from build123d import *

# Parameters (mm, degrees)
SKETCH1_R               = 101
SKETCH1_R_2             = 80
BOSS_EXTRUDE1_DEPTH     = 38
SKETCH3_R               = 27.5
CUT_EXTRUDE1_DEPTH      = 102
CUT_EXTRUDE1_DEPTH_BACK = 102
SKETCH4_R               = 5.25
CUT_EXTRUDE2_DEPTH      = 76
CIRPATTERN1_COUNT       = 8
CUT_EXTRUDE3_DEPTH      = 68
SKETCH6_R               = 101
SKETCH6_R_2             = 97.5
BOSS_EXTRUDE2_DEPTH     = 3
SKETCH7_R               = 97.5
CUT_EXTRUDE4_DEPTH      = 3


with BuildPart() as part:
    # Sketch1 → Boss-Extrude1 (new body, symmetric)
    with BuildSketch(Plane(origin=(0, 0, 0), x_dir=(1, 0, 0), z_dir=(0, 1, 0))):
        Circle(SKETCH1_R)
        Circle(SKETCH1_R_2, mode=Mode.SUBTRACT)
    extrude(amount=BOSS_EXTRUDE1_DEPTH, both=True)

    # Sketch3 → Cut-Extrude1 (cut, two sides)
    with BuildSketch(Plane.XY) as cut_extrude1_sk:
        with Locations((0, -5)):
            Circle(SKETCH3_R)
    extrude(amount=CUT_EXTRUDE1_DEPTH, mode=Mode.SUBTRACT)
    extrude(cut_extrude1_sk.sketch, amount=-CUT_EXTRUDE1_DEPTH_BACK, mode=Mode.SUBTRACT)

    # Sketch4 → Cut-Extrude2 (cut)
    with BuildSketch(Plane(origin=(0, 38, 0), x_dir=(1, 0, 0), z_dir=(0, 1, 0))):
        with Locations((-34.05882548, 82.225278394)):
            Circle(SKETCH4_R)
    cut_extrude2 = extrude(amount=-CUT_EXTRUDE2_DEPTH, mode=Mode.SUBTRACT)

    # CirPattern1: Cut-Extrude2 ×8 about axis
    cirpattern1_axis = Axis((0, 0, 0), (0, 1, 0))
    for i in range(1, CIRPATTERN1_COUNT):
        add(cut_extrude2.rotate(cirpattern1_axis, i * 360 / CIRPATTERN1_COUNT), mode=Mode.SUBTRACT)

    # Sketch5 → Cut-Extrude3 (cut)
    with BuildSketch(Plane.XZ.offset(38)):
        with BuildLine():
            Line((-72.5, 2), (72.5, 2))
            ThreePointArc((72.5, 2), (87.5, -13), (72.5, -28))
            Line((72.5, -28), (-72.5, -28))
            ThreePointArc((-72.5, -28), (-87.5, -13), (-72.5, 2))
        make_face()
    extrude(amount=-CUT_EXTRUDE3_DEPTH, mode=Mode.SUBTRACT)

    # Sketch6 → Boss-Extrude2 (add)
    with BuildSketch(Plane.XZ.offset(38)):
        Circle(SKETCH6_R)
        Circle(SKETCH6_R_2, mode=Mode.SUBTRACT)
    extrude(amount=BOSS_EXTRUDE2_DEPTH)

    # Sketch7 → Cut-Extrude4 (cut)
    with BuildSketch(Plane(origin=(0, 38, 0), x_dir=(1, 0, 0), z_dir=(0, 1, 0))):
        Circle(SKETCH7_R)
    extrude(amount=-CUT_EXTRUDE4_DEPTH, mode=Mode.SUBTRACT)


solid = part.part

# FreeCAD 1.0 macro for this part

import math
import FreeCAD as App
import Part
import Sketcher

V = App.Vector
Q = App.Units.Quantity

doc = App.newDocument("Part")
params = doc.addObject("Spreadsheet::Sheet", "Params")
for row, (alias, value) in enumerate([
    ("sketch1_diameter", "202 mm"),
    ("sketch1_diameter2", "160 mm"),
    ("pad1_length", "76 mm"),
    ("sketch2_diameter", "55 mm"),
    ("sketch3_diameter", "10.5 mm"),
    ("pocket2_length", "76 mm"),
    ("sketch4_radius", "15 mm"),
    ("sketch4_width", "145 mm"),
    ("pocket3_length", "68 mm"),
    ("sketch5_diameter", "202 mm"),
    ("sketch5_diameter2", "195 mm"),
    ("pad2_length", "3 mm"),
    ("sketch6_diameter", "195 mm"),
    ("pocket4_length", "3 mm"),
], start=1):
    params.set(f"A{row}", alias)
    params.set(f"B{row}", "=" + value)
    params.setAlias(f"B{row}", alias)

body = doc.addObject("PartDesign::Body", "Body")

# Sketch on XZ plane
sketch1 = doc.addObject("Sketcher::SketchObject", "Sketch")
body.addObject(sketch1)
sketch1.AttachmentSupport = (doc.XZ_Plane, [""])
sketch1.MapMode = "FlatFace"
sketch1.addGeometry(Part.Circle(V(0, 0, 0), V(0, 0, 1), 101), False)
sketch1.addGeometry(Part.Circle(V(0, 0, 0), V(0, 0, 1), 80), False)
sketch1.addConstraint(Sketcher.Constraint("Coincident", 0, 3, -1, 1))
sketch1.addConstraint(Sketcher.Constraint("Coincident", 1, 3, -1, 1))
sketch1.addConstraint(Sketcher.Constraint("Diameter", 0, Q("202 mm")))
sketch1.addConstraint(Sketcher.Constraint("Diameter", 1, Q("160 mm")))
sketch1.setExpression("Constraints[2]", "Params.sketch1_diameter")
sketch1.setExpression("Constraints[3]", "Params.sketch1_diameter2")
pad1 = doc.addObject("PartDesign::Pad", "Pad")
body.addObject(pad1)
pad1.Profile = sketch1
pad1.setExpression("Length", "Params.pad1_length")
pad1.Midplane = True

# Sketch on XY plane
sketch2 = doc.addObject("Sketcher::SketchObject", "Sketch001")
body.addObject(sketch2)
sketch2.AttachmentSupport = (doc.XY_Plane, [""])
sketch2.MapMode = "FlatFace"
sketch2.addGeometry(Part.Circle(V(0, -5, 0), V(0, 0, 1), 27.5), False)
sketch2.addConstraint(Sketcher.Constraint("PointOnObject", 0, 3, -2))
sketch2.addConstraint(Sketcher.Constraint("Diameter", 0, Q("55 mm")))
sketch2.addConstraint(Sketcher.Constraint("DistanceY", 0, 3, -1, 1, Q("5 mm")))
sketch2.setExpression("Constraints[1]", "Params.sketch2_diameter")
pocket1 = doc.addObject("PartDesign::Pocket", "Pocket")
body.addObject(pocket1)
pocket1.Profile = sketch2
pocket1.Type = "ThroughAll"
pocket1.Midplane = True

# Sketch on XZ plane
sketch3 = doc.addObject("Sketcher::SketchObject", "Sketch002")
body.addObject(sketch3)
sketch3.AttachmentSupport = (doc.XZ_Plane, [""])
sketch3.MapMode = "FlatFace"
sketch3.AttachmentOffset = App.Placement(V(0, 0, -38), App.Rotation())
sketch3.addGeometry(Part.Circle(V(-34.058825, -82.225278, 0), V(0, 0, 1), 5.25), False)
sketch3.addConstraint(Sketcher.Constraint("Diameter", 0, Q("10.5 mm")))
sketch3.addConstraint(Sketcher.Constraint("DistanceY", 0, 3, -1, 1, Q("82.225278 mm")))
sketch3.addConstraint(Sketcher.Constraint("DistanceX", 0, 3, -1, 1, Q("34.058825 mm")))
sketch3.setExpression("Constraints[0]", "Params.sketch3_diameter")
pocket2 = doc.addObject("PartDesign::Pocket", "Pocket001")
body.addObject(pocket2)
pocket2.Profile = sketch3
pocket2.setExpression("Length", "Params.pocket2_length")
pocket2.Reversed = True
doc.recompute()

polarpattern = doc.addObject("PartDesign::PolarPattern", "PolarPattern")
body.addObject(polarpattern)
polarpattern.Originals = [pocket2]
polarpattern.Axis = (doc.Y_Axis, [""])
polarpattern.Angle = 360
polarpattern.Occurrences = 8
body.Tip = polarpattern

# Sketch on XZ plane
sketch4 = doc.addObject("Sketcher::SketchObject", "Sketch003")
body.addObject(sketch4)
sketch4.AttachmentSupport = (doc.XZ_Plane, [""])
sketch4.MapMode = "FlatFace"
sketch4.AttachmentOffset = App.Placement(V(0, 0, 38), App.Rotation())
sketch4.addGeometry(Part.LineSegment(V(72.5, 2, 0), V(-72.5, 2, 0)), False)
sketch4.addGeometry(Part.ArcOfCircle(Part.Circle(V(-72.5, -13, 0), V(0, 0, 1), 15), math.radians(90), math.radians(270)), False)
sketch4.addGeometry(Part.LineSegment(V(-72.5, -28, 0), V(72.5, -28, 0)), False)
sketch4.addGeometry(Part.ArcOfCircle(Part.Circle(V(72.5, -13, 0), V(0, 0, 1), 15), math.radians(-90), math.radians(90)), False)
sketch4.addConstraint(Sketcher.Constraint("Tangent", 0, 2, 1, 1))
sketch4.addConstraint(Sketcher.Constraint("Tangent", 1, 2, 2, 1))
sketch4.addConstraint(Sketcher.Constraint("Tangent", 2, 2, 3, 1))
sketch4.addConstraint(Sketcher.Constraint("Tangent", 3, 2, 0, 1))
sketch4.addConstraint(Sketcher.Constraint("Horizontal", 0))
sketch4.addConstraint(Sketcher.Constraint("Horizontal", 2))
sketch4.addConstraint(Sketcher.Constraint("Radius", 1, Q("15 mm")))
sketch4.addConstraint(Sketcher.Constraint("DistanceX", 0, 2, 0, 1, Q("145 mm")))
sketch4.addConstraint(Sketcher.Constraint("DistanceY", 1, 3, -1, 1, Q("13 mm")))
sketch4.addConstraint(Sketcher.Constraint("DistanceX", 1, 3, -1, 1, Q("72.5 mm")))
sketch4.setExpression("Constraints[6]", "Params.sketch4_radius")
sketch4.setExpression("Constraints[7]", "Params.sketch4_width")
pocket3 = doc.addObject("PartDesign::Pocket", "Pocket002")
body.addObject(pocket3)
pocket3.Profile = sketch4
pocket3.setExpression("Length", "Params.pocket3_length")

# Sketch on XZ plane
sketch5 = doc.addObject("Sketcher::SketchObject", "Sketch004")
body.addObject(sketch5)
sketch5.AttachmentSupport = (doc.XZ_Plane, [""])
sketch5.MapMode = "FlatFace"
sketch5.AttachmentOffset = App.Placement(V(0, 0, 38), App.Rotation())
sketch5.addGeometry(Part.Circle(V(0, 0, 0), V(0, 0, 1), 101), False)
sketch5.addGeometry(Part.Circle(V(0, 0, 0), V(0, 0, 1), 97.5), False)
sketch5.addConstraint(Sketcher.Constraint("Coincident", 0, 3, -1, 1))
sketch5.addConstraint(Sketcher.Constraint("Coincident", 1, 3, -1, 1))
sketch5.addConstraint(Sketcher.Constraint("Diameter", 0, Q("202 mm")))
sketch5.addConstraint(Sketcher.Constraint("Diameter", 1, Q("195 mm")))
sketch5.setExpression("Constraints[2]", "Params.sketch5_diameter")
sketch5.setExpression("Constraints[3]", "Params.sketch5_diameter2")
pad2 = doc.addObject("PartDesign::Pad", "Pad001")
body.addObject(pad2)
pad2.Profile = sketch5
pad2.setExpression("Length", "Params.pad2_length")

# Sketch on XZ plane
sketch6 = doc.addObject("Sketcher::SketchObject", "Sketch005")
body.addObject(sketch6)
sketch6.AttachmentSupport = (doc.XZ_Plane, [""])
sketch6.MapMode = "FlatFace"
sketch6.AttachmentOffset = App.Placement(V(0, 0, -38), App.Rotation())
sketch6.addGeometry(Part.Circle(V(0, 0, 0), V(0, 0, 1), 97.5), False)
sketch6.addConstraint(Sketcher.Constraint("Coincident", 0, 3, -1, 1))
sketch6.addConstraint(Sketcher.Constraint("Diameter", 0, Q("195 mm")))
sketch6.setExpression("Constraints[1]", "Params.sketch6_diameter")
pocket4 = doc.addObject("PartDesign::Pocket", "Pocket003")
body.addObject(pocket4)
pocket4.Profile = sketch6
pocket4.setExpression("Length", "Params.pocket4_length")
pocket4.Reversed = True

doc.recompute()
